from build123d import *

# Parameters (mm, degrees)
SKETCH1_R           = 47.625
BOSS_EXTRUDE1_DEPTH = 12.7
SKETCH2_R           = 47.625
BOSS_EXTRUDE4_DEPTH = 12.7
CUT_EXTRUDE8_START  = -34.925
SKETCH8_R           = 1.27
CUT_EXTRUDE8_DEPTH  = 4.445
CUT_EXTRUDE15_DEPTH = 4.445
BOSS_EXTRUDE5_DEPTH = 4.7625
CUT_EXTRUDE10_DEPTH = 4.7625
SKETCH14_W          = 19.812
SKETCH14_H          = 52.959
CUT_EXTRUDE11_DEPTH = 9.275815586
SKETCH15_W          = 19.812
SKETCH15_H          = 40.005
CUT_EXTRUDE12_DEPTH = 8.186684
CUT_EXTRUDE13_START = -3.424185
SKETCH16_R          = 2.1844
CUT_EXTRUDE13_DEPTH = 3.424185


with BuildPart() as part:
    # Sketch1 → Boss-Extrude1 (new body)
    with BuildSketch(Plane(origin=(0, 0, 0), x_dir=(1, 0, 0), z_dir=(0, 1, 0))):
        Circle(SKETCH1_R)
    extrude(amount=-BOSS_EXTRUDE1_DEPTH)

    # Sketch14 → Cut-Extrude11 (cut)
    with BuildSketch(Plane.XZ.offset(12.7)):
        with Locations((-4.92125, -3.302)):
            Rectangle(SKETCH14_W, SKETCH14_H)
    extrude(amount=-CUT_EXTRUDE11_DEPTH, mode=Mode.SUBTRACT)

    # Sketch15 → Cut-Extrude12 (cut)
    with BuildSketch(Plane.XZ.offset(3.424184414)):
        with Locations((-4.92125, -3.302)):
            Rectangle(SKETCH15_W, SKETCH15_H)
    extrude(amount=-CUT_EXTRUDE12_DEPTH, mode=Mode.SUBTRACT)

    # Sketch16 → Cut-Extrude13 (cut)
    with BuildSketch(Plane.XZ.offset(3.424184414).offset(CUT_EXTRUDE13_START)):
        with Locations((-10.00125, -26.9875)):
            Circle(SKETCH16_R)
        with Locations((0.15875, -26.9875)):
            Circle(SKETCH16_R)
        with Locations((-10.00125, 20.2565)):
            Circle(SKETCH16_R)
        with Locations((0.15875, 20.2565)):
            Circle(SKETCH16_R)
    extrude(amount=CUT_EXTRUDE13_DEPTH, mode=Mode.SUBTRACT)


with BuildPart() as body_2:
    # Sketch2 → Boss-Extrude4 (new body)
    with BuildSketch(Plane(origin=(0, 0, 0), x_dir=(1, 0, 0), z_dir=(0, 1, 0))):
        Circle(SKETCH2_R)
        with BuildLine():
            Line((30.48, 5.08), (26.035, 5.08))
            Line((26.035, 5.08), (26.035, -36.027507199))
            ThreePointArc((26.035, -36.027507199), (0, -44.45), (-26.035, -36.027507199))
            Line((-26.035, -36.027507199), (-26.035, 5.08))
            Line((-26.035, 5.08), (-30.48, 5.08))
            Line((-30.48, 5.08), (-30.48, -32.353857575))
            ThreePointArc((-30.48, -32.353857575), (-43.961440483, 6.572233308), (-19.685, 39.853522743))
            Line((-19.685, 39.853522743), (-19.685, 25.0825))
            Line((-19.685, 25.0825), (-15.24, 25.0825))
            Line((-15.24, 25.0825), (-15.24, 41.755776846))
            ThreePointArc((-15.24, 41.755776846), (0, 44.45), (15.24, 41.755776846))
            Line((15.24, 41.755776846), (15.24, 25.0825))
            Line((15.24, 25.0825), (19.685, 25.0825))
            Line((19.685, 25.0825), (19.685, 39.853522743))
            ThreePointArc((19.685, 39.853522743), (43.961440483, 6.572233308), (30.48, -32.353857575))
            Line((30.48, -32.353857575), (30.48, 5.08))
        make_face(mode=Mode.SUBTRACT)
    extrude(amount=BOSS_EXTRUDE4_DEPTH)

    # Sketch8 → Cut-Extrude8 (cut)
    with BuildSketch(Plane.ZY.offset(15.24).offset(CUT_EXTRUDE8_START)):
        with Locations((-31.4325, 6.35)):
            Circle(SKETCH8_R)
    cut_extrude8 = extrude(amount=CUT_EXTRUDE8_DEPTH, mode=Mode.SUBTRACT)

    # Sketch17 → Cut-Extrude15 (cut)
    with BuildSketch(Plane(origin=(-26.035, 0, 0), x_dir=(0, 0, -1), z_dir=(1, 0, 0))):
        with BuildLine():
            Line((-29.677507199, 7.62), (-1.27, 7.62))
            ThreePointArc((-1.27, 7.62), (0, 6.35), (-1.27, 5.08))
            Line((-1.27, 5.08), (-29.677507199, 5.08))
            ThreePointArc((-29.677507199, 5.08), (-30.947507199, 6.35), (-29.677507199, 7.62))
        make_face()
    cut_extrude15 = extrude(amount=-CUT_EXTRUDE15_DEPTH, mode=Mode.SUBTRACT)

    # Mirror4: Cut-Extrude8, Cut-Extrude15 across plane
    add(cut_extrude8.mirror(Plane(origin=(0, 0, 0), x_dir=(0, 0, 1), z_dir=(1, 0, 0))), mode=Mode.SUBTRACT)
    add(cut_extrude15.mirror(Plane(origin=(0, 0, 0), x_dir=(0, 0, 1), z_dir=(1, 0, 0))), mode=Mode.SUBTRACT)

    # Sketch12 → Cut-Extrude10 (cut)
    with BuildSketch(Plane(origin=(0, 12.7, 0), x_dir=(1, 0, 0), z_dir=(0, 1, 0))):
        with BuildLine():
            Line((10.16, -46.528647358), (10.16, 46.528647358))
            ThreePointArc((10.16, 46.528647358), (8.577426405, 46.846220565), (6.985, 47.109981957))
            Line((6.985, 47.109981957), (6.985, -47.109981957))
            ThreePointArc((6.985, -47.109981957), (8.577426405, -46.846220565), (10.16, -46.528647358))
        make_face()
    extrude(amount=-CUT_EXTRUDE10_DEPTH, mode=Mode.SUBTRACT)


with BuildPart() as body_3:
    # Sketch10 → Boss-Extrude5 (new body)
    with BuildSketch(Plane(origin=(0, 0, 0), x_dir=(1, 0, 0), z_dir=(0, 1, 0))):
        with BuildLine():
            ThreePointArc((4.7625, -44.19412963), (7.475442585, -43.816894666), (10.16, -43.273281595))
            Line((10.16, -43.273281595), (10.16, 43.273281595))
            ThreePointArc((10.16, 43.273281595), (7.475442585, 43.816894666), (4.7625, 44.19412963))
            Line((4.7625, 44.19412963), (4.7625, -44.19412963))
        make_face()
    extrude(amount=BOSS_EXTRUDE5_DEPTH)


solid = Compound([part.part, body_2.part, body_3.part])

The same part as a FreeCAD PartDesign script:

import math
import FreeCAD as App
import Part
import Sketcher

V = App.Vector
Q = App.Units.Quantity


def add_polygon(sketch, points):
    """Adds a closed chain of lines whose ends are joined by coincident constraints."""
    first, n = sketch.GeometryCount, len(points)
    for a, b in zip(points, points[1:] + points[:1]):
        sketch.addGeometry(Part.LineSegment(App.Vector(*a, 0), App.Vector(*b, 0)), False)
    for i in range(n):
        sketch.addConstraint(Sketcher.Constraint("Coincident", first + i, 2, first + (i + 1) % n, 1))

doc = App.newDocument("Part")
body = doc.addObject("PartDesign::Body", "Body")

# Sketch on XZ plane
sketch1 = doc.addObject("Sketcher::SketchObject", "Sketch")
body.addObject(sketch1)
sketch1.AttachmentSupport = (doc.XZ_Plane, [""])
sketch1.MapMode = "FlatFace"
sketch1.addGeometry(Part.Circle(V(0, 0, 0), V(0, 0, 1), 48), False)
sketch1.addConstraint(Sketcher.Constraint("Coincident", 0, 3, -1, 1))
sketch1.addConstraint(Sketcher.Constraint("Diameter", 0, Q("3.75 in")))
pad1 = doc.addObject("PartDesign::Pad", "Pad")
body.addObject(pad1)
pad1.Profile = sketch1
pad1.Length = Q("0.5 in")

# Sketch on XZ plane
sketch2 = doc.addObject("Sketcher::SketchObject", "Sketch001")
body.addObject(sketch2)
sketch2.AttachmentSupport = (doc.XZ_Plane, [""])
sketch2.MapMode = "FlatFace"
sketch2.AttachmentOffset = App.Placement(V(0, 0, 0.5 * 25.4), App.Rotation())
add_polygon(sketch2, [(-15, 23), (-15, -30), (5, -30), (5, 23)])  # lines 0-3
sketch2.addConstraint(Sketcher.Constraint("Vertical", 0))
sketch2.addConstraint(Sketcher.Constraint("Horizontal", 1))
sketch2.addConstraint(Sketcher.Constraint("Vertical", 2))
sketch2.addConstraint(Sketcher.Constraint("Horizontal", 3))
sketch2.addConstraint(Sketcher.Constraint("DistanceX", 1, 1, 1, 2, Q("0.78 in")))
sketch2.addConstraint(Sketcher.Constraint("DistanceY", 0, 2, 0, 1, Q("2.085 in")))
sketch2.addConstraint(Sketcher.Constraint("DistanceY", 0, 2, -1, 1, Q("1.1725 in")))
sketch2.addConstraint(Sketcher.Constraint("DistanceX", 0, 2, -1, 1, 14.82725))
pocket1 = doc.addObject("PartDesign::Pocket", "Pocket")
body.addObject(pocket1)
pocket1.Profile = sketch2
pocket1.Length = 9.275816

# Sketch on XZ plane
sketch3 = doc.addObject("Sketcher::SketchObject", "Sketch002")
body.addObject(sketch3)
sketch3.AttachmentSupport = (doc.XZ_Plane, [""])
sketch3.MapMode = "FlatFace"
sketch3.AttachmentOffset = App.Placement(V(0, 0, 3.424184), App.Rotation())
add_polygon(sketch3, [(-15, 17), (-15, -23), (5, -23), (5, 17)])  # lines 0-3
sketch3.addConstraint(Sketcher.Constraint("Vertical", 0))
sketch3.addConstraint(Sketcher.Constraint("Horizontal", 1))
sketch3.addConstraint(Sketcher.Constraint("Vertical", 2))
sketch3.addConstraint(Sketcher.Constraint("Horizontal", 3))
sketch3.addConstraint(Sketcher.Constraint("DistanceX", 1, 1, 1, 2, Q("0.78 in")))
sketch3.addConstraint(Sketcher.Constraint("DistanceY", 0, 2, 0, 1, Q("1.575 in")))
sketch3.addConstraint(Sketcher.Constraint("DistanceY", 0, 2, -1, 1, Q("0.9175 in")))
sketch3.addConstraint(Sketcher.Constraint("DistanceX", 0, 2, -1, 1, 14.82725))
pocket2 = doc.addObject("PartDesign::Pocket", "Pocket001")
body.addObject(pocket2)
pocket2.Profile = sketch3
pocket2.Length = 8.186684

# Sketch on XZ plane
sketch4 = doc.addObject("Sketcher::SketchObject", "Sketch003")
body.addObject(sketch4)
sketch4.AttachmentSupport = (doc.XZ_Plane, [""])
sketch4.MapMode = "FlatFace"
sketch4.AttachmentOffset = App.Placement(V(0, 0, 0 * 25.4), App.Rotation())
sketch4.addGeometry(Part.Circle(V(-10, -27, 0), V(0, 0, 1), 2.2), False)
sketch4.addGeometry(Part.Circle(V(0.2, -27, 0), V(0, 0, 1), 2.2), False)
sketch4.addGeometry(Part.Circle(V(-10, 20.3, 0), V(0, 0, 1), 2.2), False)
sketch4.addGeometry(Part.Circle(V(0.2, 20.3, 0), V(0, 0, 1), 2.2), False)
sketch4.addConstraint(Sketcher.Constraint("Equal", 0, 1))
sketch4.addConstraint(Sketcher.Constraint("Equal", 1, 2))
sketch4.addConstraint(Sketcher.Constraint("Equal", 2, 3))
sketch4.addConstraint(Sketcher.Constraint("Horizontal", 0, 3, 1, 3))
sketch4.addConstraint(Sketcher.Constraint("Horizontal", 2, 3, 3, 3))
sketch4.addConstraint(Sketcher.Constraint("Vertical", 0, 3, 2, 3))
sketch4.addConstraint(Sketcher.Constraint("Vertical", 1, 3, 3, 3))
sketch4.addConstraint(Sketcher.Constraint("Diameter", 0, Q("0.172 in")))
sketch4.addConstraint(Sketcher.Constraint("DistanceX", 0, 3, 1, 3, Q("0.4 in")))
sketch4.addConstraint(Sketcher.Constraint("DistanceY", 0, 3, 2, 3, Q("1.86 in")))
sketch4.addConstraint(Sketcher.Constraint("DistanceY", 0, 3, -1, 1, Q("1.0625 in")))
sketch4.addConstraint(Sketcher.Constraint("DistanceX", 0, 3, -1, 1, 10.00125))
pocket3 = doc.addObject("PartDesign::Pocket", "Pocket002")
body.addObject(pocket3)
pocket3.Profile = sketch4
pocket3.Length = 3.424185
pocket3.Reversed = True
body2 = doc.addObject("PartDesign::Body", "Body001")

# Sketch on XZ plane
sketch5 = doc.addObject("Sketcher::SketchObject", "Sketch004")
body2.addObject(sketch5)
sketch5.AttachmentSupport = (doc.getObject("XZ_Plane001"), [""])
sketch5.MapMode = "FlatFace"
sketch5.addGeometry(Part.Circle(V(0, 0, 0), V(0, 0, 1), 47.6), False)
sketch5.addGeometry(Part.LineSegment(V(30.5, 32.4, 0), V(30.5, -5.1, 0)), False)
sketch5.addGeometry(Part.LineSegment(V(30.5, -5.1, 0), V(26, -5.1, 0)), False)
sketch5.addGeometry(Part.LineSegment(V(26, -5.1, 0), V(26, 36, 0)), False)
sketch5.addGeometry(Part.ArcOfCircle(Part.Circle(V(0, 0, 0), V(0, 0, 1), 44.4), math.radians(54), math.radians(126)), False)
sketch5.addGeometry(Part.LineSegment(V(-26, 36, 0), V(-26, -5.1, 0)), False)
sketch5.addGeometry(Part.LineSegment(V(-26, -5.1, 0), V(-30.5, -5.1, 0)), False)
sketch5.addGeometry(Part.LineSegment(V(-30.5, -5.1, 0), V(-30.5, 32.4, 0)), False)
sketch5.addGeometry(Part.ArcOfCircle(Part.Circle(V(0, 0, 0), V(0, 0, 1), 44.5), math.radians(133), math.radians(244)), False)
sketch5.addGeometry(Part.LineSegment(V(-19.7, -39.9, 0), V(-19.7, -25.1, 0)), False)
sketch5.addGeometry(Part.LineSegment(V(-19.7, -25.1, 0), V(-15.2, -25.1, 0)), False)
sketch5.addGeometry(Part.LineSegment(V(-15.2, -25.1, 0), V(-15.2, -41.8, 0)), False)
sketch5.addGeometry(Part.ArcOfCircle(Part.Circle(V(0, 0, 0), V(0, 0, 1), 44.5), math.radians(-110), math.radians(-70)), False)
sketch5.addGeometry(Part.LineSegment(V(15.2, -41.8, 0), V(15.2, -25.1, 0)), False)
sketch5.addGeometry(Part.LineSegment(V(15.2, -25.1, 0), V(19.7, -25.1, 0)), False)
sketch5.addGeometry(Part.LineSegment(V(19.7, -25.1, 0), V(19.7, -39.9, 0)), False)
sketch5.addGeometry(Part.ArcOfCircle(Part.Circle(V(0, 0, 0), V(0, 0, 1), 44.5), math.radians(-64), math.radians(47)), False)
sketch5.addConstraint(Sketcher.Constraint("Coincident", 1, 2, 2, 1))
sketch5.addConstraint(Sketcher.Constraint("Coincident", 2, 2, 3, 1))
sketch5.addConstraint(Sketcher.Constraint("Coincident", 3, 2, 4, 1))
sketch5.addConstraint(Sketcher.Constraint("Coincident", 4, 2, 5, 1))
sketch5.addConstraint(Sketcher.Constraint("Coincident", 5, 2, 6, 1))
sketch5.addConstraint(Sketcher.Constraint("Coincident", 6, 2, 7, 1))
sketch5.addConstraint(Sketcher.Constraint("Coincident", 7, 2, 8, 1))
sketch5.addConstraint(Sketcher.Constraint("Coincident", 8, 2, 9, 1))
sketch5.addConstraint(Sketcher.Constraint("Coincident", 9, 2, 10, 1))
sketch5.addConstraint(Sketcher.Constraint("Coincident", 10, 2, 11, 1))
sketch5.addConstraint(Sketcher.Constraint("Coincident", 11, 2, 12, 1))
sketch5.addConstraint(Sketcher.Constraint("Coincident", 12, 2, 13, 1))
sketch5.addConstraint(Sketcher.Constraint("Coincident", 13, 2, 14, 1))
sketch5.addConstraint(Sketcher.Constraint("Coincident", 14, 2, 15, 1))
sketch5.addConstraint(Sketcher.Constraint("Coincident", 15, 2, 16, 1))
sketch5.addConstraint(Sketcher.Constraint("Coincident", 16, 2, 1, 1))
sketch5.addConstraint(Sketcher.Constraint("Vertical", 1))
sketch5.addConstraint(Sketcher.Constraint("Horizontal", 2))
sketch5.addConstraint(Sketcher.Constraint("Vertical", 3))
sketch5.addConstraint(Sketcher.Constraint("Vertical", 5))
sketch5.addConstraint(Sketcher.Constraint("Horizontal", 6))
sketch5.addConstraint(Sketcher.Constraint("Vertical", 7))
sketch5.addConstraint(Sketcher.Constraint("Vertical", 9))
sketch5.addConstraint(Sketcher.Constraint("Horizontal", 10))
sketch5.addConstraint(Sketcher.Constraint("Vertical", 11))
sketch5.addConstraint(Sketcher.Constraint("Vertical", 13))
sketch5.addConstraint(Sketcher.Constraint("Horizontal", 14))
sketch5.addConstraint(Sketcher.Constraint("Vertical", 15))
sketch5.addConstraint(Sketcher.Constraint("Coincident", 0, 3, -1, 1))
sketch5.addConstraint(Sketcher.Constraint("Coincident", 4, 3, -1, 1))
sketch5.addConstraint(Sketcher.Constraint("Coincident", 8, 3, -1, 1))
sketch5.addConstraint(Sketcher.Constraint("Coincident", 12, 3, -1, 1))
sketch5.addConstraint(Sketcher.Constraint("Coincident", 16, 3, -1, 1))
sketch5.addConstraint(Sketcher.Constraint("Equal", 4, 8))
sketch5.addConstraint(Sketcher.Constraint("Equal", 8, 12))
sketch5.addConstraint(Sketcher.Constraint("Equal", 12, 16))
sketch5.addConstraint(Sketcher.Constraint("Symmetric", 2, 2, 5, 2, -2))
sketch5.addConstraint(Sketcher.Constraint("Symmetric", 10, 2, 13, 2, -2))
sketch5.addConstraint(Sketcher.Constraint("Horizontal", 8, 2, 15, 2))
sketch5.addConstraint(Sketcher.Constraint("Horizontal", 7, 2, 16, 2))
sketch5.addConstraint(Sketcher.Constraint("Equal", 6, 10))
sketch5.addConstraint(Sketcher.Constraint("Diameter", 0, Q("3.75 in")))
sketch5.addConstraint(Sketcher.Constraint("Radius", 4, Q("1.75 in")))
sketch5.addConstraint(Sketcher.Constraint("DistanceX", -1, 1, 1, 2, Q("1.2 in")))
sketch5.addConstraint(Sketcher.Constraint("DistanceY", 1, 2, -1, 1, Q("0.2 in")))
sketch5.addConstraint(Sketcher.Constraint("DistanceX", 10, 2, -1, 1, Q("0.6 in")))
sketch5.addConstraint(Sketcher.Constraint("DistanceX", 2, 2, 2, 1, Q("0.175 in")))
sketch5.addConstraint(Sketcher.Constraint("DistanceY", 9, 2, -1, 1, Q("0.9875 in")))
pad2 = doc.addObject("PartDesign::Pad", "Pad001")
body2.addObject(pad2)
pad2.Profile = sketch5
pad2.Length = Q("0.5 in")
pad2.Reversed = True

# Sketch on YZ plane
sketch6 = doc.addObject("Sketcher::SketchObject", "Sketch005")
body2.addObject(sketch6)
sketch6.AttachmentSupport = (doc.getObject("YZ_Plane001"), [""])
sketch6.MapMode = "FlatFace"
sketch6.AttachmentOffset = App.Placement(V(0, 0, 0.775 * 25.4), App.Rotation())
sketch6.addGeometry(Part.Circle(V(6.3, -31.4, 0), V(0, 0, 1), 1.3), False)
sketch6.addConstraint(Sketcher.Constraint("Diameter", 0, Q("0.1 in")))
sketch6.addConstraint(Sketcher.Constraint("DistanceX", -1, 1, 0, 3, Q("0.25 in")))
sketch6.addConstraint(Sketcher.Constraint("DistanceY", 0, 3, -1, 1, Q("1.2375 in")))
pocket4 = doc.addObject("PartDesign::Pocket", "Pocket003")
body2.addObject(pocket4)
pocket4.Profile = sketch6
pocket4.Length = Q("0.175 in")

# Sketch on YZ plane
sketch7 = doc.addObject("Sketcher::SketchObject", "Sketch006")
body2.addObject(sketch7)
sketch7.AttachmentSupport = (doc.getObject("YZ_Plane001"), [""])
sketch7.MapMode = "FlatFace"
sketch7.AttachmentOffset = App.Placement(V(0, 0, -1.025 * 25.4), App.Rotation())
sketch7.addGeometry(Part.LineSegment(V(7.6, 1.3, 0), V(7.6, 29.7, 0)), False)
sketch7.addGeometry(Part.ArcOfCircle(Part.Circle(V(6.3, 29.7, 0), V(0, 0, 1), 1.3), math.radians(0), math.radians(180)), False)
sketch7.addGeometry(Part.LineSegment(V(5.1, 29.7, 0), V(5.1, 1.3, 0)), False)
sketch7.addGeometry(Part.ArcOfCircle(Part.Circle(V(6.3, 1.3, 0), V(0, 0, 1), 1.3), math.radians(180), math.radians(360)), False)
sketch7.addConstraint(Sketcher.Constraint("Tangent", 0, 2, 1, 1))
sketch7.addConstraint(Sketcher.Constraint("Tangent", 1, 2, 2, 1))
sketch7.addConstraint(Sketcher.Constraint("Tangent", 2, 2, 3, 1))
sketch7.addConstraint(Sketcher.Constraint("Tangent", 3, 2, 0, 1))
sketch7.addConstraint(Sketcher.Constraint("Vertical", 0))
sketch7.addConstraint(Sketcher.Constraint("Vertical", 2))
sketch7.addConstraint(Sketcher.Constraint("Radius", 1, Q("0.05 in")))
sketch7.addConstraint(Sketcher.Constraint("DistanceX", -1, 1, 0, 2, Q("0.3 in")))
sketch7.addConstraint(Sketcher.Constraint("DistanceY", -1, 1, 3, 3, Q("0.05 in")))
sketch7.addConstraint(Sketcher.Constraint("DistanceY", 0, 1, 0, 2, 28.407507))
pocket5 = doc.addObject("PartDesign::Pocket", "Pocket004")
body2.addObject(pocket5)
pocket5.Profile = sketch7
pocket5.Length = Q("0.175 in")
doc.recompute()

mirrored = doc.addObject("PartDesign::Mirrored", "Mirrored")
body2.addObject(mirrored)
mirrored.Originals = [pocket4, pocket5]
mirrored.MirrorPlane = (doc.getObject("YZ_Plane001"), [""])
body2.Tip = mirrored

# Sketch on XZ plane
sketch8 = doc.addObject("Sketcher::SketchObject", "Sketch007")
body2.addObject(sketch8)
sketch8.AttachmentSupport = (doc.getObject("XZ_Plane001"), [""])
sketch8.MapMode = "FlatFace"
sketch8.AttachmentOffset = App.Placement(V(0, 0, -0.5 * 25.4), App.Rotation())
sketch8.addGeometry(Part.LineSegment(V(10.2, 46.5, 0), V(10.2, -46.5, 0)), False)
sketch8.addGeometry(Part.ArcOfCircle(Part.Circle(V(0, 0, 0), V(0, 0, 1), 47.6), math.radians(-81.57), math.radians(-77.68)), False)
sketch8.addGeometry(Part.LineSegment(V(7, -47.1, 0), V(7, 47.1, 0)), False)
sketch8.addGeometry(Part.ArcOfCircle(Part.Circle(V(0, 0, 0), V(0, 0, 1), 47.6), math.radians(77.68), math.radians(81.57)), False)
sketch8.addConstraint(Sketcher.Constraint("Coincident", 0, 2, 1, 2))
sketch8.addConstraint(Sketcher.Constraint("Coincident", 1, 1, 2, 1))
sketch8.addConstraint(Sketcher.Constraint("Coincident", 2, 2, 3, 2))
sketch8.addConstraint(Sketcher.Constraint("Coincident", 3, 1, 0, 1))
sketch8.addConstraint(Sketcher.Constraint("Vertical", 0))
sketch8.addConstraint(Sketcher.Constraint("Vertical", 2))
sketch8.addConstraint(Sketcher.Constraint("Coincident", 1, 3, -1, 1))
sketch8.addConstraint(Sketcher.Constraint("Coincident", 3, 3, -1, 1))
sketch8.addConstraint(Sketcher.Constraint("Equal", 1, 3))
sketch8.addConstraint(Sketcher.Constraint("Radius", 1, Q("1.875 in")))
sketch8.addConstraint(Sketcher.Constraint("DistanceX", -1, 1, 0, 2, Q("0.4 in")))
sketch8.addConstraint(Sketcher.Constraint("DistanceX", -1, 1, 1, 1, Q("0.275 in")))
pocket6 = doc.addObject("PartDesign::Pocket", "Pocket005")
body2.addObject(pocket6)
pocket6.Profile = sketch8
pocket6.Length = Q("0.1875 in")
pocket6.Reversed = True
body3 = doc.addObject("PartDesign::Body", "Body002")

# Sketch on XZ plane
sketch9 = doc.addObject("Sketcher::SketchObject", "Sketch008")
body3.addObject(sketch9)
sketch9.AttachmentSupport = (doc.getObject("XZ_Plane002"), [""])
sketch9.MapMode = "FlatFace"
sketch9.addGeometry(Part.ArcOfCircle(Part.Circle(V(0, 0, 0), V(0, 0, 1), 44), math.radians(76.79), math.radians(83.85)), False)
sketch9.addGeometry(Part.LineSegment(V(10, 43, 0), V(10, -43, 0)), False)
sketch9.addGeometry(Part.ArcOfCircle(Part.Circle(V(0, 0, 0), V(0, 0, 1), 44), math.radians(-83.85), math.radians(-76.79)), False)
sketch9.addGeometry(Part.LineSegment(V(5, -44, 0), V(5, 44, 0)), False)
sketch9.addConstraint(Sketcher.Constraint("Coincident", 0, 1, 1, 1))
sketch9.addConstraint(Sketcher.Constraint("Coincident", 1, 2, 2, 2))
sketch9.addConstraint(Sketcher.Constraint("Coincident", 2, 1, 3, 1))
sketch9.addConstraint(Sketcher.Constraint("Coincident", 3, 2, 0, 2))
sketch9.addConstraint(Sketcher.Constraint("Vertical", 1))
sketch9.addConstraint(Sketcher.Constraint("Vertical", 3))
sketch9.addConstraint(Sketcher.Constraint("Coincident", 0, 3, -1, 1))
sketch9.addConstraint(Sketcher.Constraint("Coincident", 2, 3, -1, 1))
sketch9.addConstraint(Sketcher.Constraint("Equal", 0, 2))
sketch9.addConstraint(Sketcher.Constraint("Radius", 0, Q("1.75 in")))
sketch9.addConstraint(Sketcher.Constraint("DistanceX", -1, 1, 0, 1, Q("0.4 in")))
sketch9.addConstraint(Sketcher.Constraint("DistanceX", -1, 1, 2, 1, Q("0.1875 in")))
pad3 = doc.addObject("PartDesign::Pad", "Pad002")
body3.addObject(pad3)
pad3.Profile = sketch9
pad3.Length = Q("0.1875 in")
pad3.Reversed = True

doc.recompute()
